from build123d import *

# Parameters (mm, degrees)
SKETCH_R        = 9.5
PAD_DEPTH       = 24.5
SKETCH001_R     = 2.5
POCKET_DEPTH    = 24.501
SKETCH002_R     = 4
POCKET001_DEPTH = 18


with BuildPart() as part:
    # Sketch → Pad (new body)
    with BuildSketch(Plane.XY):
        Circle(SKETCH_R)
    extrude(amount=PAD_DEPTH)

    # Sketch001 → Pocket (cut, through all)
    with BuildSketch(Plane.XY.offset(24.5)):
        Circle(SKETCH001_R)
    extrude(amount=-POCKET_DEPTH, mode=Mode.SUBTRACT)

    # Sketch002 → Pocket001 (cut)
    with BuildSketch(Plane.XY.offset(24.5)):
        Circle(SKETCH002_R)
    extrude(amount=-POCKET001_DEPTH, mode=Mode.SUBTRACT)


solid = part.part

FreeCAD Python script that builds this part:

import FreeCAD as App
import Part
import Sketcher
from FreeCAD import Vector

doc = App.newDocument("Part")
params = doc.addObject("Spreadsheet::Sheet", "Params")
for row, (alias, value) in enumerate([
    ("sketch1_diameter", "19 mm"),
    ("pad1_length", "24.5 mm"),
    ("sketch2_diameter", "5 mm"),
    ("sketch3_diameter", "8 mm"),
    ("pocket2_length", "18 mm"),
], start=1):
    params.set(f"A{row}", alias)
    params.set(f"B{row}", "=" + value)
    params.setAlias(f"B{row}", alias)

body = doc.addObject("PartDesign::Body", "Body")

# Sketch on XY plane
sketch1 = doc.addObject("Sketcher::SketchObject", "Sketch")
body.addObject(sketch1)
sketch1.AttachmentSupport = (doc.XY_Plane, [""])
sketch1.MapMode = "FlatFace"
sketch1.addGeometry(Part.Circle(Vector(0, 0, 0), Vector(0, 0, 1), 9.5), False)
sketch1.addConstraint([
    Sketcher.Constraint("Coincident", 0, 3, -1, 1),
    Sketcher.Constraint("Diameter", 0, 19.0),
])
sketch1.setExpression("Constraints[1]", "Params.sketch1_diameter")
pad1 = doc.addObject("PartDesign::Pad", "Pad")
body.addObject(pad1)
pad1.Profile = sketch1
pad1.setExpression("Length", "Params.pad1_length")

# Sketch on XY plane
sketch2 = doc.addObject("Sketcher::SketchObject", "Sketch001")
body.addObject(sketch2)
sketch2.AttachmentSupport = (doc.XY_Plane, [""])
sketch2.MapMode = "FlatFace"
sketch2.AttachmentOffset = App.Placement(Vector(0, 0, 24.5), App.Rotation())
sketch2.addGeometry(Part.Circle(Vector(0, 0, 0), Vector(0, 0, 1), 2.5), False)
sketch2.addConstraint([
    Sketcher.Constraint("Coincident", 0, 3, -1, 1),
    Sketcher.Constraint("Diameter", 0, 5.0),
])
sketch2.setExpression("Constraints[1]", "Params.sketch2_diameter")
pocket1 = doc.addObject("PartDesign::Pocket", "Pocket")
body.addObject(pocket1)
pocket1.Profile = sketch2
pocket1.Type = "ThroughAll"

# Sketch on XY plane
sketch3 = doc.addObject("Sketcher::SketchObject", "Sketch002")
body.addObject(sketch3)
sketch3.AttachmentSupport = (doc.XY_Plane, [""])
sketch3.MapMode = "FlatFace"
sketch3.AttachmentOffset = App.Placement(Vector(0, 0, 24.5), App.Rotation())
sketch3.addGeometry(Part.Circle(Vector(0, 0, 0), Vector(0, 0, 1), 4), False)
sketch3.addConstraint([
    Sketcher.Constraint("Coincident", 0, 3, -1, 1),
    Sketcher.Constraint("Diameter", 0, 8.0),
])
sketch3.setExpression("Constraints[1]", "Params.sketch3_diameter")
pocket2 = doc.addObject("PartDesign::Pocket", "Pocket001")
body.addObject(pocket2)
pocket2.Profile = sketch3
pocket2.setExpression("Length", "Params.pocket2_length")

doc.recompute()
